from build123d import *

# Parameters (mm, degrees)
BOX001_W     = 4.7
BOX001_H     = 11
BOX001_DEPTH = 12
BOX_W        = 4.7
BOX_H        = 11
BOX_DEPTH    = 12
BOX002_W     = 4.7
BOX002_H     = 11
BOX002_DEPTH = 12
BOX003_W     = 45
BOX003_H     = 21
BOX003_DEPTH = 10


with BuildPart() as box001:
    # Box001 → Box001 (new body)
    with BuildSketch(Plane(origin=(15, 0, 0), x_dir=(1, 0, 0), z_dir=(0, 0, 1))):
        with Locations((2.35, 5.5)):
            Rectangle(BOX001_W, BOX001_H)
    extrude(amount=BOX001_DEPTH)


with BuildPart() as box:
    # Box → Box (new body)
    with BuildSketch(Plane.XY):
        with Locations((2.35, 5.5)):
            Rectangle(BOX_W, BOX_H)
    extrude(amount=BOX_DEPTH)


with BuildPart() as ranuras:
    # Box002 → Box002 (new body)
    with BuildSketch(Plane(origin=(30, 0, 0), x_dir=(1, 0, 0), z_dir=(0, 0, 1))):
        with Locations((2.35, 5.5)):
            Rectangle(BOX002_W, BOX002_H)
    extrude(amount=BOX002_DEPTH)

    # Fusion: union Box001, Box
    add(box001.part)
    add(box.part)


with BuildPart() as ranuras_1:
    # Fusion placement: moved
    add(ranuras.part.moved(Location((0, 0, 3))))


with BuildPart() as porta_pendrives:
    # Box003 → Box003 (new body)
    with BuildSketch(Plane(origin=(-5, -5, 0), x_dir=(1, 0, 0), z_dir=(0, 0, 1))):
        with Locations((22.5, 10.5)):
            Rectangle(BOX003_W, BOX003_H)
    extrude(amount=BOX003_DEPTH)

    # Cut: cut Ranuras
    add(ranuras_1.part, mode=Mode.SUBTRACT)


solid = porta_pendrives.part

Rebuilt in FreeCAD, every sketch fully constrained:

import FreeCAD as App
import Part
import Sketcher
Q = App.Units.Quantity


def add_polygon(sketch, points):
    """Adds a closed chain of lines whose ends are joined by coincident constraints."""
    first, n = sketch.GeometryCount, len(points)
    for a, b in zip(points, points[1:] + points[:1]):
        sketch.addGeometry(Part.LineSegment(App.Vector(*a, 0), App.Vector(*b, 0)), False)
    for i in range(n):
        sketch.addConstraint(Sketcher.Constraint("Coincident", first + i, 2, first + (i + 1) % n, 1))

doc = App.newDocument("Part")
body = doc.addObject("PartDesign::Body", "Body")

# Sketch on XY plane
sketch1 = body.newObject("Sketcher::SketchObject", "Sketch")
sketch1.AttachmentSupport = (doc.getObject("XY_Plane"), [""])
sketch1.MapMode = "FlatFace"
add_polygon(sketch1, [(15, 11), (15, 0), (19.7, 0), (19.7, 11)])  # lines 0-3
sketch1.addConstraint(Sketcher.Constraint("Vertical", 0))
sketch1.addConstraint(Sketcher.Constraint("Horizontal", 1))
sketch1.addConstraint(Sketcher.Constraint("Vertical", 2))
sketch1.addConstraint(Sketcher.Constraint("Horizontal", 3))
sketch1.addConstraint(Sketcher.Constraint("PointOnObject", 0, 2, -1))
sketch1.addConstraint(Sketcher.Constraint("DistanceY", 0, 2, 0, 1, Q("11 mm")))
sketch1.addConstraint(Sketcher.Constraint("DistanceX", 1, 1, 1, 2, Q("4.7 mm")))
sketch1.addConstraint(Sketcher.Constraint("DistanceX", -1, 1, 0, 2, Q("15 mm")))
pad1 = body.newObject("PartDesign::Pad", "Pad")
pad1.Profile = sketch1
pad1.Length = 12
body2 = doc.addObject("PartDesign::Body", "Body001")

# Sketch on XY plane
sketch2 = body2.newObject("Sketcher::SketchObject", "Sketch001")
sketch2.AttachmentSupport = (doc.getObject("XY_Plane001"), [""])
sketch2.MapMode = "FlatFace"
add_polygon(sketch2, [(0, 11), (0, 0), (4.7, 0), (4.7, 11)])  # lines 0-3
sketch2.addConstraint(Sketcher.Constraint("Vertical", 0))
sketch2.addConstraint(Sketcher.Constraint("Horizontal", 1))
sketch2.addConstraint(Sketcher.Constraint("Vertical", 2))
sketch2.addConstraint(Sketcher.Constraint("Horizontal", 3))
sketch2.addConstraint(Sketcher.Constraint("Coincident", 0, 2, -1, 1))
sketch2.addConstraint(Sketcher.Constraint("DistanceY", 0, 2, 0, 1, Q("11 mm")))
sketch2.addConstraint(Sketcher.Constraint("DistanceX", 1, 1, 1, 2, Q("4.7 mm")))
pad2 = body2.newObject("PartDesign::Pad", "Pad001")
pad2.Profile = sketch2
pad2.Length = 12
body3 = doc.addObject("PartDesign::Body", "Body002")
body3.AllowCompound = True

# Sketch on XY plane
sketch3 = body3.newObject("Sketcher::SketchObject", "Sketch002")
sketch3.AttachmentSupport = (doc.getObject("XY_Plane002"), [""])
sketch3.MapMode = "FlatFace"
add_polygon(sketch3, [(30, 11), (30, 0), (34.7, 0), (34.7, 11)])  # lines 0-3
sketch3.addConstraint(Sketcher.Constraint("Vertical", 0))
sketch3.addConstraint(Sketcher.Constraint("Horizontal", 1))
sketch3.addConstraint(Sketcher.Constraint("Vertical", 2))
sketch3.addConstraint(Sketcher.Constraint("Horizontal", 3))
sketch3.addConstraint(Sketcher.Constraint("PointOnObject", 0, 2, -1))
sketch3.addConstraint(Sketcher.Constraint("DistanceY", 0, 2, 0, 1, Q("11 mm")))
sketch3.addConstraint(Sketcher.Constraint("DistanceX", 1, 1, 1, 2, Q("4.7 mm")))
sketch3.addConstraint(Sketcher.Constraint("DistanceX", -1, 1, 0, 2, Q("30 mm")))
pad3 = body3.newObject("PartDesign::Pad", "Pad002")
pad3.Profile = sketch3
pad3.Length = 12
doc.recompute()

boolean = body3.newObject("PartDesign::Boolean", "Boolean")
boolean.Type = "Fuse"
boolean.addObjects([body])
doc.recompute()

boolean2 = body3.newObject("PartDesign::Boolean", "Boolean001")
boolean2.Type = "Fuse"
boolean2.addObjects([body2])
body4 = doc.addObject("PartDesign::Body", "Body003")
body4.AllowCompound = True
doc.recompute()

body3.Placement = App.Placement(App.Vector(0, 0, 3), App.Rotation(App.Vector(0, 0, 1), 0))
boolean3 = body4.newObject("PartDesign::Boolean", "Boolean002")
boolean3.Type = "Fuse"
boolean3.addObjects([body3])
body5 = doc.addObject("PartDesign::Body", "Body004")

# Sketch on XY plane
sketch4 = body5.newObject("Sketcher::SketchObject", "Sketch003")
sketch4.AttachmentSupport = (doc.getObject("XY_Plane004"), [""])
sketch4.MapMode = "FlatFace"
add_polygon(sketch4, [(-5, 16), (-5, -5), (40, -5), (40, 16)])  # lines 0-3
sketch4.addConstraint(Sketcher.Constraint("Vertical", 0))
sketch4.addConstraint(Sketcher.Constraint("Horizontal", 1))
sketch4.addConstraint(Sketcher.Constraint("Vertical", 2))
sketch4.addConstraint(Sketcher.Constraint("Horizontal", 3))
sketch4.addConstraint(Sketcher.Constraint("DistanceX", 1, 1, 1, 2, Q("45 mm")))
sketch4.addConstraint(Sketcher.Constraint("DistanceY", 0, 2, 0, 1, Q("21 mm")))
sketch4.addConstraint(Sketcher.Constraint("DistanceX", 0, 2, -1, 1, Q("5 mm")))
sketch4.addConstraint(Sketcher.Constraint("DistanceY", 0, 2, -1, 1, Q("5 mm")))
pad4 = body5.newObject("PartDesign::Pad", "Pad003")
pad4.Profile = sketch4
pad4.Length = 10
doc.recompute()

boolean4 = body5.newObject("PartDesign::Boolean", "Boolean003")
boolean4.Type = "Cut"
boolean4.addObjects([body4])

doc.recompute()
